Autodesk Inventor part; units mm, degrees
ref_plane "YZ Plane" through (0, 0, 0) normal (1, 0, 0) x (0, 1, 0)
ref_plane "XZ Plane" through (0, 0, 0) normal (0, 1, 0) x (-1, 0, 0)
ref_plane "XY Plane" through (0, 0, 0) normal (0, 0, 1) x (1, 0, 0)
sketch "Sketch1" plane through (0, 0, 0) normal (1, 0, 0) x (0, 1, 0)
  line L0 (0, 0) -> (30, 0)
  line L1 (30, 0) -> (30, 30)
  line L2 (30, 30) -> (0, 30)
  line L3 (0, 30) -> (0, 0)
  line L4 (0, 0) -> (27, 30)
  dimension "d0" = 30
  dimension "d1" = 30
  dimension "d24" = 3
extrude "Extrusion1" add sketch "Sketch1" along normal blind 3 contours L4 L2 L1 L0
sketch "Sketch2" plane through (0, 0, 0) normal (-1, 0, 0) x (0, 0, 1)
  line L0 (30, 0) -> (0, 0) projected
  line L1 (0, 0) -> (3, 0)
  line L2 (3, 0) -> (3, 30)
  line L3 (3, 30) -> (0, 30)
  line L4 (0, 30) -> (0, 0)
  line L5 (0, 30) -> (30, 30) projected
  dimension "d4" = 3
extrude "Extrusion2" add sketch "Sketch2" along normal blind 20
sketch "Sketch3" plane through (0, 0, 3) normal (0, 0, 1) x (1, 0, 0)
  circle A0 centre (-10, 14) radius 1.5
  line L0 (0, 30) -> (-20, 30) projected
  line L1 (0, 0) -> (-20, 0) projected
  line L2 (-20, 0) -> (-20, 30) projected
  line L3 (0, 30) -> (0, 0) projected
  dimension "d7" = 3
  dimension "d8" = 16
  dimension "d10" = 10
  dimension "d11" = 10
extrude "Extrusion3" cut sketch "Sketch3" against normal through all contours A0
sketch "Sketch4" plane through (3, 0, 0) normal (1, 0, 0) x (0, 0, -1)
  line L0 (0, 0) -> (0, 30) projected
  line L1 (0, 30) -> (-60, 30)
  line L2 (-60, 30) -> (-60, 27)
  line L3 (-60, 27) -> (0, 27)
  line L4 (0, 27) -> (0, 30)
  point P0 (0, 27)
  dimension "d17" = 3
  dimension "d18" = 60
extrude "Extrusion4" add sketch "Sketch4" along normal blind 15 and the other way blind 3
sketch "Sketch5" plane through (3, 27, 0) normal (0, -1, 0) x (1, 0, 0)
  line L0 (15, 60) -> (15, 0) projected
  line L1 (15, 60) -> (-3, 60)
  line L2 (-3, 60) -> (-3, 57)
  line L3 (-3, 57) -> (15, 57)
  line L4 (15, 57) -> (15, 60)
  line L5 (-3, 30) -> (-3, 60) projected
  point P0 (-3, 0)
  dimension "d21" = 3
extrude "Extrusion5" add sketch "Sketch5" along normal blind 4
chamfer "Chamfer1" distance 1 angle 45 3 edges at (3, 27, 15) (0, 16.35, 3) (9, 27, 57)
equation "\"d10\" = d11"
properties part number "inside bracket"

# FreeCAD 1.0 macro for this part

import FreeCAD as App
import Part
import Sketcher

V = App.Vector
Q = App.Units.Quantity


def edges_at(feature, points):
    """Names of the edges that pass closest to the given points."""
    edges = feature.Shape.Edges
    near = lambda p: min(range(len(edges)), key=lambda i: edges[i].distToShape(Part.Vertex(*p))[0])
    return sorted({f"Edge{near(p) + 1}" for p in points})

doc = App.newDocument("Part")
body = doc.addObject("PartDesign::Body", "Body")

sketch1 = doc.addObject("Sketcher::SketchObject", "Sketch")
body.addObject(sketch1)
sketch1.AttachmentSupport = (doc.YZ_Plane, [""])
sketch1.MapMode = "FlatFace"
sketch1.addGeometry([
    Part.LineSegment(V(27, 30, 0), V(0, 0, 0)),
    Part.LineSegment(V(0, 0, 0), V(30, 0, 0)),
    Part.LineSegment(V(30, 0, 0), V(30, 30, 0)),
    Part.LineSegment(V(30, 30, 0), V(27, 30, 0)),
], False)
sketch1.addConstraint([
    Sketcher.Constraint("Coincident", 0, 2, 1, 1),
    Sketcher.Constraint("Coincident", 1, 2, 2, 1),
    Sketcher.Constraint("Coincident", 2, 2, 3, 1),
    Sketcher.Constraint("Coincident", 3, 2, 0, 1),
    Sketcher.Constraint("Horizontal", 1),
    Sketcher.Constraint("Vertical", 2),
    Sketcher.Constraint("Horizontal", 3),
    Sketcher.Constraint("Coincident", 0, 2, -1, 1),
    Sketcher.Constraint("Equal", 1, 2),
    Sketcher.Constraint("DistanceX", 1, 1, 1, 2, Q("30 mm")),
    Sketcher.Constraint("DistanceX", 3, 2, 3, 1, Q("3 mm")),
])
pad1 = doc.addObject("PartDesign::Pad", "Pad")
body.addObject(pad1)
pad1.Profile = sketch1
pad1.Length = 3

sketch2 = doc.addObject("Sketcher::SketchObject", "Sketch001")
body.addObject(sketch2)
sketch2.AttachmentSupport = (doc.YZ_Plane, [""])
sketch2.MapMode = "FlatFace"
sketch2.addGeometry([
    Part.LineSegment(V(0, 0, 0), V(0, 3, 0)),
    Part.LineSegment(V(0, 3, 0), V(30, 3, 0)),
    Part.LineSegment(V(30, 3, 0), V(30, 0, 0)),
    Part.LineSegment(V(30, 0, 0), V(0, 0, 0)),
], False)
sketch2.addConstraint([
    Sketcher.Constraint("Coincident", 0, 2, 1, 1),
    Sketcher.Constraint("Coincident", 1, 2, 2, 1),
    Sketcher.Constraint("Coincident", 2, 2, 3, 1),
    Sketcher.Constraint("Coincident", 3, 2, 0, 1),
    Sketcher.Constraint("Vertical", 0),
    Sketcher.Constraint("Horizontal", 1),
    Sketcher.Constraint("Vertical", 2),
    Sketcher.Constraint("Horizontal", 3),
    Sketcher.Constraint("Coincident", 3, 2, -1, 1),
    Sketcher.Constraint("DistanceY", 0, 1, 0, 2, Q("3 mm")),
    Sketcher.Constraint("DistanceX", 1, 1, 1, 2, Q("30 mm")),
])
pad2 = doc.addObject("PartDesign::Pad", "Pad001")
body.addObject(pad2)
pad2.Profile = sketch2
pad2.Length = 20
pad2.Reversed = True

sketch3 = doc.addObject("Sketcher::SketchObject", "Sketch002")
body.addObject(sketch3)
sketch3.AttachmentSupport = (doc.XY_Plane, [""])
sketch3.MapMode = "FlatFace"
sketch3.AttachmentOffset = App.Placement(V(0, 0, 3), App.Rotation())
sketch3.addGeometry(Part.Circle(V(-10, 14, 0), V(0, 0, 1), 1.5), False)
sketch3.addConstraint([
    Sketcher.Constraint("Diameter", 0, Q("3 mm")),
    Sketcher.Constraint("DistanceX", 0, 3, -1, 1, Q("10 mm")),
    Sketcher.Constraint("DistanceY", -1, 1, 0, 3, Q("14 mm")),
])
pocket1 = doc.addObject("PartDesign::Pocket", "Pocket")
body.addObject(pocket1)
pocket1.Profile = sketch3
pocket1.Type = "ThroughAll"

sketch4 = doc.addObject("Sketcher::SketchObject", "Sketch003")
body.addObject(sketch4)
sketch4.AttachmentSupport = (doc.YZ_Plane, [""])
sketch4.MapMode = "FlatFace"
sketch4.AttachmentOffset = App.Placement(V(0, 0, 3), App.Rotation())
sketch4.addGeometry([
    Part.LineSegment(V(27, 60, 0), V(27, 0, 0)),
    Part.LineSegment(V(27, 0, 0), V(30, 0, 0)),
    Part.LineSegment(V(30, 0, 0), V(30, 60, 0)),
    Part.LineSegment(V(30, 60, 0), V(27, 60, 0)),
], False)
sketch4.addConstraint([
    Sketcher.Constraint("Coincident", 0, 2, 1, 1),
    Sketcher.Constraint("Coincident", 1, 2, 2, 1),
    Sketcher.Constraint("Coincident", 2, 2, 3, 1),
    Sketcher.Constraint("Coincident", 3, 2, 0, 1),
    Sketcher.Constraint("Vertical", 0),
    Sketcher.Constraint("Horizontal", 1),
    Sketcher.Constraint("Vertical", 2),
    Sketcher.Constraint("Horizontal", 3),
    Sketcher.Constraint("PointOnObject", 0, 2, -1),
    Sketcher.Constraint("DistanceX", 1, 1, 1, 2, Q("3 mm")),
    Sketcher.Constraint("DistanceY", 0, 2, 0, 1, Q("60 mm")),
    Sketcher.Constraint("DistanceX", -1, 1, 0, 2, Q("27 mm")),
])
pad3 = doc.addObject("PartDesign::Pad", "Pad002")
body.addObject(pad3)
pad3.Profile = sketch4
pad3.Type = "TwoLengths"
pad3.Length = 15
pad3.Length2 = 3

sketch5 = doc.addObject("Sketcher::SketchObject", "Sketch004")
body.addObject(sketch5)
sketch5.AttachmentSupport = (doc.XZ_Plane, [""])
sketch5.MapMode = "FlatFace"
sketch5.AttachmentOffset = App.Placement(V(0, 0, -27), App.Rotation())
sketch5.addGeometry([
    Part.LineSegment(V(18, 57, 0), V(18, 60, 0)),
    Part.LineSegment(V(18, 60, 0), V(0, 60, 0)),
    Part.LineSegment(V(0, 60, 0), V(0, 57, 0)),
    Part.LineSegment(V(0, 57, 0), V(18, 57, 0)),
], False)
sketch5.addConstraint([
    Sketcher.Constraint("Coincident", 0, 2, 1, 1),
    Sketcher.Constraint("Coincident", 1, 2, 2, 1),
    Sketcher.Constraint("Coincident", 2, 2, 3, 1),
    Sketcher.Constraint("Coincident", 3, 2, 0, 1),
    Sketcher.Constraint("Vertical", 0),
    Sketcher.Constraint("Horizontal", 1),
    Sketcher.Constraint("Vertical", 2),
    Sketcher.Constraint("Horizontal", 3),
    Sketcher.Constraint("PointOnObject", 1, 2, -2),
    Sketcher.Constraint("DistanceY", 0, 1, 0, 2, Q("3 mm")),
    Sketcher.Constraint("DistanceX", 1, 2, 1, 1, Q("18 mm")),
    Sketcher.Constraint("DistanceY", -1, 1, 0, 2, Q("60 mm")),
])
pad4 = doc.addObject("PartDesign::Pad", "Pad003")
body.addObject(pad4)
pad4.Profile = sketch5
pad4.Length = 4
doc.recompute()

chamfer = doc.addObject("PartDesign::Chamfer", "Chamfer")
body.addObject(chamfer)
chamfer.Base = (pad4, edges_at(pad4, [(3, 27, 15), (0, 16.35, 3), (9, 27, 57)]))
chamfer.Size = 1

doc.recompute()
